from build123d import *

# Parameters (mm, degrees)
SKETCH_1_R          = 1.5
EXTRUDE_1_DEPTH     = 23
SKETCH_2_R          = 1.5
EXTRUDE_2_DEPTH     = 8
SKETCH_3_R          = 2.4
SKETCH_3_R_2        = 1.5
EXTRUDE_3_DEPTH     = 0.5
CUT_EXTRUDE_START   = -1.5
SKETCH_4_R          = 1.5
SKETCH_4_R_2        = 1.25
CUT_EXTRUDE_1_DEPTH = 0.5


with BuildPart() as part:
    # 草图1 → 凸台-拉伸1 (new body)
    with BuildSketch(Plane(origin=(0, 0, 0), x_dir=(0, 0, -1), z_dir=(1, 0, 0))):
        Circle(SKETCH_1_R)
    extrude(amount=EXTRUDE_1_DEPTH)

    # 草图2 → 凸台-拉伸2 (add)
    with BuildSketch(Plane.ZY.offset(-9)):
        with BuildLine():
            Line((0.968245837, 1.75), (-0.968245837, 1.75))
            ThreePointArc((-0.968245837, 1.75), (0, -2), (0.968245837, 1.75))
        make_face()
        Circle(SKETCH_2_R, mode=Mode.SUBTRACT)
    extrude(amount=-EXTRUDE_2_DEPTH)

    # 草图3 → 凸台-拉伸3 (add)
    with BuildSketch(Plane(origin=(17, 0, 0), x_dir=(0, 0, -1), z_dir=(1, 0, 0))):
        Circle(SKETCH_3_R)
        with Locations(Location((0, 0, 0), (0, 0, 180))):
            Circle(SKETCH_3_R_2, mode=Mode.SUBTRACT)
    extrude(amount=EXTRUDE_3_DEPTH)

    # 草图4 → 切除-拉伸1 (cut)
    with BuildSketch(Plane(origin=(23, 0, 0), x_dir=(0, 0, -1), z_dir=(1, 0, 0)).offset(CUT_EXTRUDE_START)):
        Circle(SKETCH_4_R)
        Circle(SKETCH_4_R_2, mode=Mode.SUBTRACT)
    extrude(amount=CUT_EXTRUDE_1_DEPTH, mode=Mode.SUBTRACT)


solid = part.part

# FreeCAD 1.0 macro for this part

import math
import FreeCAD as App
import Part
import Sketcher
Q = App.Units.Quantity

doc = App.newDocument("Part")
body = doc.addObject("PartDesign::Body", "Body")

# Sketch on YZ plane
sketch1 = body.newObject("Sketcher::SketchObject", "Sketch")
sketch1.AttachmentSupport = (doc.getObject("YZ_Plane"), [""])
sketch1.MapMode = "FlatFace"
sketch1.addGeometry(Part.Circle(App.Vector(0, 0, 0), App.Vector(0, 0, 1), 1.5), False)
sketch1.addConstraint(Sketcher.Constraint("Coincident", 0, 3, -1, 1))
sketch1.addConstraint(Sketcher.Constraint("Diameter", 0, Q("3 mm")))
pad1 = body.newObject("PartDesign::Pad", "Pad")
pad1.Profile = sketch1
pad1.Length = 23

# Sketch on YZ plane
sketch2 = body.newObject("Sketcher::SketchObject", "Sketch001")
sketch2.AttachmentSupport = (doc.getObject("YZ_Plane"), [""])
sketch2.MapMode = "FlatFace"
sketch2.AttachmentOffset = App.Placement(App.Vector(0, 0, 9), App.Rotation())
sketch2.addGeometry(Part.LineSegment(App.Vector(1.8, 1, 0), App.Vector(1.8, -1, 0)), False)
sketch2.addGeometry(Part.ArcOfCircle(Part.Circle(App.Vector(0, 0, 0), App.Vector(0, 0, 1), 2), math.radians(29), math.radians(331)), False)
sketch2.addGeometry(Part.Circle(App.Vector(0, 0, 0), App.Vector(0, 0, 1), 1.5), False)
sketch2.addConstraint(Sketcher.Constraint("Coincident", 0, 1, 1, 1))
sketch2.addConstraint(Sketcher.Constraint("Coincident", 1, 2, 0, 2))
sketch2.addConstraint(Sketcher.Constraint("Vertical", 0))
sketch2.addConstraint(Sketcher.Constraint("Coincident", 1, 3, -1, 1))
sketch2.addConstraint(Sketcher.Constraint("Coincident", 2, 3, -1, 1))
sketch2.addConstraint(Sketcher.Constraint("Diameter", 2, Q("3 mm")))
sketch2.addConstraint(Sketcher.Constraint("Radius", 1, Q("2 mm")))
sketch2.addConstraint(Sketcher.Constraint("DistanceX", -1, 1, 0, 1, Q("1.75 mm")))
pad2 = body.newObject("PartDesign::Pad", "Pad001")
pad2.Profile = sketch2
pad2.Length = 8

# Sketch on YZ plane
sketch3 = body.newObject("Sketcher::SketchObject", "Sketch002")
sketch3.AttachmentSupport = (doc.getObject("YZ_Plane"), [""])
sketch3.MapMode = "FlatFace"
sketch3.AttachmentOffset = App.Placement(App.Vector(0, 0, 17), App.Rotation())
sketch3.addGeometry(Part.Circle(App.Vector(0, 0, 0), App.Vector(0, 0, 1), 2.4), False)
sketch3.addGeometry(Part.Circle(App.Vector(0, 0, 0), App.Vector(0, 0, 1), 1.5), False)
sketch3.addConstraint(Sketcher.Constraint("Coincident", 0, 3, -1, 1))
sketch3.addConstraint(Sketcher.Constraint("Coincident", 1, 3, -1, 1))
sketch3.addConstraint(Sketcher.Constraint("Diameter", 1, Q("3 mm")))
sketch3.addConstraint(Sketcher.Constraint("Diameter", 0, Q("4.8 mm")))
pad3 = body.newObject("PartDesign::Pad", "Pad002")
pad3.Profile = sketch3
pad3.Length = 0.5

# Sketch on YZ plane
sketch4 = body.newObject("Sketcher::SketchObject", "Sketch003")
sketch4.AttachmentSupport = (doc.getObject("YZ_Plane"), [""])
sketch4.MapMode = "FlatFace"
sketch4.AttachmentOffset = App.Placement(App.Vector(0, 0, 21.5), App.Rotation())
sketch4.addGeometry(Part.Circle(App.Vector(0, 0, 0), App.Vector(0, 0, 1), 1.5), False)
sketch4.addGeometry(Part.Circle(App.Vector(0, 0, 0), App.Vector(0, 0, 1), 1.2), False)
sketch4.addConstraint(Sketcher.Constraint("Coincident", 0, 3, -1, 1))
sketch4.addConstraint(Sketcher.Constraint("Coincident", 1, 3, -1, 1))
sketch4.addConstraint(Sketcher.Constraint("Diameter", 0, Q("3 mm")))
sketch4.addConstraint(Sketcher.Constraint("Diameter", 1, Q("2.5 mm")))
pocket1 = body.newObject("PartDesign::Pocket", "Pocket")
pocket1.Profile = sketch4
pocket1.Length = 0.5
pocket1.Reversed = True

doc.recompute()
